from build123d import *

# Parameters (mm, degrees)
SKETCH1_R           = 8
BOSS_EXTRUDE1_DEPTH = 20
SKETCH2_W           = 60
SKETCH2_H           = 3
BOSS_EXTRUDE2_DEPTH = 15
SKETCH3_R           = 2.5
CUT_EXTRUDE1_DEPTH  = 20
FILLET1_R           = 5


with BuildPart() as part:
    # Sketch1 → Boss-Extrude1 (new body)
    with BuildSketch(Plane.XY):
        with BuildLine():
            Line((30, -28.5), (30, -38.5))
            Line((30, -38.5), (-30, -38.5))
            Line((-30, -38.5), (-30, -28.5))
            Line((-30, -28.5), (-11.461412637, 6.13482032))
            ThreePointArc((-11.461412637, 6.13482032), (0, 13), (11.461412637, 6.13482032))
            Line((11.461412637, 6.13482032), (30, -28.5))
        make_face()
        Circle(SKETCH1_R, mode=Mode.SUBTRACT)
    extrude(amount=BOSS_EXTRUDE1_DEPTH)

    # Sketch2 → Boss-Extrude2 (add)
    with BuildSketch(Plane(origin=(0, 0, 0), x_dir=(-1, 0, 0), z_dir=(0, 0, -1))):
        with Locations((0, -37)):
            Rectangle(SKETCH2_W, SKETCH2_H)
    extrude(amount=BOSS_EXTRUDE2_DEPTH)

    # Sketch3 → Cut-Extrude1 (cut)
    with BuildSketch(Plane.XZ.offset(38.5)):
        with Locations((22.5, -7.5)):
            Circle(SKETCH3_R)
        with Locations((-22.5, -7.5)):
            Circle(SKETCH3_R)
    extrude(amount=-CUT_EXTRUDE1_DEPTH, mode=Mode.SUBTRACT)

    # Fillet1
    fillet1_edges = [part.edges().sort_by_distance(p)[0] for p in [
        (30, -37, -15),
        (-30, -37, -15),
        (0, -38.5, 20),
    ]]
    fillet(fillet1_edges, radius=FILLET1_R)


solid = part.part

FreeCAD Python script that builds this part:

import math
import FreeCAD as App
import Part
import Sketcher
from FreeCAD import Vector
Q = App.Units.Quantity


def edges_at(feature, points):
    """Names of the edges that pass closest to the given points."""
    edges = feature.Shape.Edges
    near = lambda p: min(range(len(edges)), key=lambda i: edges[i].distToShape(Part.Vertex(*p))[0])
    return sorted({f"Edge{near(p) + 1}" for p in points})


def add_polygon(sketch, points):
    """Adds a closed chain of lines whose ends are joined by coincident constraints."""
    first, n = sketch.GeometryCount, len(points)
    for a, b in zip(points, points[1:] + points[:1]):
        sketch.addGeometry(Part.LineSegment(App.Vector(*a, 0), App.Vector(*b, 0)), False)
    for i in range(n):
        sketch.addConstraint(Sketcher.Constraint("Coincident", first + i, 2, first + (i + 1) % n, 1))

doc = App.newDocument("Part")
body = doc.addObject("PartDesign::Body", "Body")

# Sketch on XY plane
sketch1 = body.newObject("Sketcher::SketchObject", "Sketch")
sketch1.AttachmentSupport = (doc.getObject("XY_Plane"), [""])
sketch1.MapMode = "FlatFace"
sketch1.addGeometry([
    Part.LineSegment(Vector(30, -38.5, 0), Vector(30, -28.5, 0)),  # 0
    Part.LineSegment(Vector(30, -28.5, 0), Vector(11.461413, 6.13482, 0)),  # 1
    Part.ArcOfCircle(Part.Circle(Vector(0, 0, 0), Vector(0, 0, 1), 13), math.radians(28.158302), math.radians(151.841698)),  # 2
    Part.LineSegment(Vector(-11.461413, 6.13482, 0), Vector(-30, -28.5, 0)),  # 3
    Part.LineSegment(Vector(-30, -28.5, 0), Vector(-30, -38.5, 0)),  # 4
    Part.LineSegment(Vector(-30, -38.5, 0), Vector(30, -38.5, 0)),  # 5
    Part.Circle(Vector(0, 0, 0), Vector(0, 0, 1), 8),  # 6
], False)
sketch1.addConstraint([
    Sketcher.Constraint("Coincident", 0, 2, 1, 1),
    Sketcher.Constraint("Tangent", 1, 2, 2, 1),
    Sketcher.Constraint("Tangent", 2, 2, 3, 1),
    Sketcher.Constraint("Coincident", 3, 2, 4, 1),
    Sketcher.Constraint("Coincident", 4, 2, 5, 1),
    Sketcher.Constraint("Coincident", 5, 2, 0, 1),
    Sketcher.Constraint("Vertical", 0),
    Sketcher.Constraint("Vertical", 4),
    Sketcher.Constraint("Horizontal", 5),
    Sketcher.Constraint("Coincident", 2, 3, -1, 1),
    Sketcher.Constraint("Coincident", 6, 3, -1, 1),
    Sketcher.Constraint("Symmetric", 0, 2, 3, 2, -2),
    Sketcher.Constraint("Diameter", 6, Q("16 mm")),
    Sketcher.Constraint("Radius", 2, Q("13 mm")),
    Sketcher.Constraint("DistanceX", 5, 1, 5, 2, Q("60 mm")),
    Sketcher.Constraint("DistanceY", 0, 1, 0, 2, Q("10 mm")),
    Sketcher.Constraint("DistanceY", 0, 2, -1, 1, Q("28.5 mm")),
])
pad1 = body.newObject("PartDesign::Pad", "Pad")
pad1.Profile = sketch1
pad1.Length = 20

# Sketch on XY plane
sketch2 = body.newObject("Sketcher::SketchObject", "Sketch001")
sketch2.AttachmentSupport = (doc.getObject("XY_Plane"), [""])
sketch2.MapMode = "FlatFace"
add_polygon(sketch2, [(30, -35.5), (30, -38.5), (-30, -38.5), (-30, -35.5)])  # lines 0-3
sketch2.addConstraint([
    Sketcher.Constraint("Vertical", 0),
    Sketcher.Constraint("Horizontal", 1),
    Sketcher.Constraint("Vertical", 2),
    Sketcher.Constraint("Horizontal", 3),
    Sketcher.Constraint("DistanceX", 1, 2, 1, 1, Q("60 mm")),
    Sketcher.Constraint("DistanceY", 0, 2, 0, 1, Q("3 mm")),
    Sketcher.Constraint("DistanceX", -1, 1, 0, 2, Q("30 mm")),
    Sketcher.Constraint("DistanceY", 0, 2, -1, 1, Q("38.5 mm")),
])
pad2 = body.newObject("PartDesign::Pad", "Pad001")
pad2.Profile = sketch2
pad2.Length = 15
pad2.Reversed = True

# Sketch on XZ plane
sketch3 = body.newObject("Sketcher::SketchObject", "Sketch002")
sketch3.AttachmentSupport = (doc.getObject("XZ_Plane"), [""])
sketch3.MapMode = "FlatFace"
sketch3.AttachmentOffset = App.Placement(Vector(0, 0, 38.5), App.Rotation())
sketch3.addGeometry([
    Part.Circle(Vector(22.5, -7.5, 0), Vector(0, 0, 1), 2.5),
    Part.Circle(Vector(-22.5, -7.5, 0), Vector(0, 0, 1), 2.5),
], False)
sketch3.addConstraint([
    Sketcher.Constraint("Equal", 0, 1),
    Sketcher.Constraint("Symmetric", 0, 3, 1, 3, -2),
    Sketcher.Constraint("Diameter", 0, Q("5 mm")),
    Sketcher.Constraint("DistanceX", 1, 3, 0, 3, Q("45 mm")),
    Sketcher.Constraint("DistanceY", 0, 3, -1, 1, Q("7.5 mm")),
])
pocket1 = body.newObject("PartDesign::Pocket", "Pocket")
pocket1.Profile = sketch3
pocket1.Length = 20
doc.recompute()

fillet = body.newObject("PartDesign::Fillet", "Fillet")
fillet.Base = (pocket1, edges_at(pocket1, [(30, -37, -15), (-30, -37, -15), (0, -38.5, 20)]))
fillet.Radius = 5

doc.recompute()
